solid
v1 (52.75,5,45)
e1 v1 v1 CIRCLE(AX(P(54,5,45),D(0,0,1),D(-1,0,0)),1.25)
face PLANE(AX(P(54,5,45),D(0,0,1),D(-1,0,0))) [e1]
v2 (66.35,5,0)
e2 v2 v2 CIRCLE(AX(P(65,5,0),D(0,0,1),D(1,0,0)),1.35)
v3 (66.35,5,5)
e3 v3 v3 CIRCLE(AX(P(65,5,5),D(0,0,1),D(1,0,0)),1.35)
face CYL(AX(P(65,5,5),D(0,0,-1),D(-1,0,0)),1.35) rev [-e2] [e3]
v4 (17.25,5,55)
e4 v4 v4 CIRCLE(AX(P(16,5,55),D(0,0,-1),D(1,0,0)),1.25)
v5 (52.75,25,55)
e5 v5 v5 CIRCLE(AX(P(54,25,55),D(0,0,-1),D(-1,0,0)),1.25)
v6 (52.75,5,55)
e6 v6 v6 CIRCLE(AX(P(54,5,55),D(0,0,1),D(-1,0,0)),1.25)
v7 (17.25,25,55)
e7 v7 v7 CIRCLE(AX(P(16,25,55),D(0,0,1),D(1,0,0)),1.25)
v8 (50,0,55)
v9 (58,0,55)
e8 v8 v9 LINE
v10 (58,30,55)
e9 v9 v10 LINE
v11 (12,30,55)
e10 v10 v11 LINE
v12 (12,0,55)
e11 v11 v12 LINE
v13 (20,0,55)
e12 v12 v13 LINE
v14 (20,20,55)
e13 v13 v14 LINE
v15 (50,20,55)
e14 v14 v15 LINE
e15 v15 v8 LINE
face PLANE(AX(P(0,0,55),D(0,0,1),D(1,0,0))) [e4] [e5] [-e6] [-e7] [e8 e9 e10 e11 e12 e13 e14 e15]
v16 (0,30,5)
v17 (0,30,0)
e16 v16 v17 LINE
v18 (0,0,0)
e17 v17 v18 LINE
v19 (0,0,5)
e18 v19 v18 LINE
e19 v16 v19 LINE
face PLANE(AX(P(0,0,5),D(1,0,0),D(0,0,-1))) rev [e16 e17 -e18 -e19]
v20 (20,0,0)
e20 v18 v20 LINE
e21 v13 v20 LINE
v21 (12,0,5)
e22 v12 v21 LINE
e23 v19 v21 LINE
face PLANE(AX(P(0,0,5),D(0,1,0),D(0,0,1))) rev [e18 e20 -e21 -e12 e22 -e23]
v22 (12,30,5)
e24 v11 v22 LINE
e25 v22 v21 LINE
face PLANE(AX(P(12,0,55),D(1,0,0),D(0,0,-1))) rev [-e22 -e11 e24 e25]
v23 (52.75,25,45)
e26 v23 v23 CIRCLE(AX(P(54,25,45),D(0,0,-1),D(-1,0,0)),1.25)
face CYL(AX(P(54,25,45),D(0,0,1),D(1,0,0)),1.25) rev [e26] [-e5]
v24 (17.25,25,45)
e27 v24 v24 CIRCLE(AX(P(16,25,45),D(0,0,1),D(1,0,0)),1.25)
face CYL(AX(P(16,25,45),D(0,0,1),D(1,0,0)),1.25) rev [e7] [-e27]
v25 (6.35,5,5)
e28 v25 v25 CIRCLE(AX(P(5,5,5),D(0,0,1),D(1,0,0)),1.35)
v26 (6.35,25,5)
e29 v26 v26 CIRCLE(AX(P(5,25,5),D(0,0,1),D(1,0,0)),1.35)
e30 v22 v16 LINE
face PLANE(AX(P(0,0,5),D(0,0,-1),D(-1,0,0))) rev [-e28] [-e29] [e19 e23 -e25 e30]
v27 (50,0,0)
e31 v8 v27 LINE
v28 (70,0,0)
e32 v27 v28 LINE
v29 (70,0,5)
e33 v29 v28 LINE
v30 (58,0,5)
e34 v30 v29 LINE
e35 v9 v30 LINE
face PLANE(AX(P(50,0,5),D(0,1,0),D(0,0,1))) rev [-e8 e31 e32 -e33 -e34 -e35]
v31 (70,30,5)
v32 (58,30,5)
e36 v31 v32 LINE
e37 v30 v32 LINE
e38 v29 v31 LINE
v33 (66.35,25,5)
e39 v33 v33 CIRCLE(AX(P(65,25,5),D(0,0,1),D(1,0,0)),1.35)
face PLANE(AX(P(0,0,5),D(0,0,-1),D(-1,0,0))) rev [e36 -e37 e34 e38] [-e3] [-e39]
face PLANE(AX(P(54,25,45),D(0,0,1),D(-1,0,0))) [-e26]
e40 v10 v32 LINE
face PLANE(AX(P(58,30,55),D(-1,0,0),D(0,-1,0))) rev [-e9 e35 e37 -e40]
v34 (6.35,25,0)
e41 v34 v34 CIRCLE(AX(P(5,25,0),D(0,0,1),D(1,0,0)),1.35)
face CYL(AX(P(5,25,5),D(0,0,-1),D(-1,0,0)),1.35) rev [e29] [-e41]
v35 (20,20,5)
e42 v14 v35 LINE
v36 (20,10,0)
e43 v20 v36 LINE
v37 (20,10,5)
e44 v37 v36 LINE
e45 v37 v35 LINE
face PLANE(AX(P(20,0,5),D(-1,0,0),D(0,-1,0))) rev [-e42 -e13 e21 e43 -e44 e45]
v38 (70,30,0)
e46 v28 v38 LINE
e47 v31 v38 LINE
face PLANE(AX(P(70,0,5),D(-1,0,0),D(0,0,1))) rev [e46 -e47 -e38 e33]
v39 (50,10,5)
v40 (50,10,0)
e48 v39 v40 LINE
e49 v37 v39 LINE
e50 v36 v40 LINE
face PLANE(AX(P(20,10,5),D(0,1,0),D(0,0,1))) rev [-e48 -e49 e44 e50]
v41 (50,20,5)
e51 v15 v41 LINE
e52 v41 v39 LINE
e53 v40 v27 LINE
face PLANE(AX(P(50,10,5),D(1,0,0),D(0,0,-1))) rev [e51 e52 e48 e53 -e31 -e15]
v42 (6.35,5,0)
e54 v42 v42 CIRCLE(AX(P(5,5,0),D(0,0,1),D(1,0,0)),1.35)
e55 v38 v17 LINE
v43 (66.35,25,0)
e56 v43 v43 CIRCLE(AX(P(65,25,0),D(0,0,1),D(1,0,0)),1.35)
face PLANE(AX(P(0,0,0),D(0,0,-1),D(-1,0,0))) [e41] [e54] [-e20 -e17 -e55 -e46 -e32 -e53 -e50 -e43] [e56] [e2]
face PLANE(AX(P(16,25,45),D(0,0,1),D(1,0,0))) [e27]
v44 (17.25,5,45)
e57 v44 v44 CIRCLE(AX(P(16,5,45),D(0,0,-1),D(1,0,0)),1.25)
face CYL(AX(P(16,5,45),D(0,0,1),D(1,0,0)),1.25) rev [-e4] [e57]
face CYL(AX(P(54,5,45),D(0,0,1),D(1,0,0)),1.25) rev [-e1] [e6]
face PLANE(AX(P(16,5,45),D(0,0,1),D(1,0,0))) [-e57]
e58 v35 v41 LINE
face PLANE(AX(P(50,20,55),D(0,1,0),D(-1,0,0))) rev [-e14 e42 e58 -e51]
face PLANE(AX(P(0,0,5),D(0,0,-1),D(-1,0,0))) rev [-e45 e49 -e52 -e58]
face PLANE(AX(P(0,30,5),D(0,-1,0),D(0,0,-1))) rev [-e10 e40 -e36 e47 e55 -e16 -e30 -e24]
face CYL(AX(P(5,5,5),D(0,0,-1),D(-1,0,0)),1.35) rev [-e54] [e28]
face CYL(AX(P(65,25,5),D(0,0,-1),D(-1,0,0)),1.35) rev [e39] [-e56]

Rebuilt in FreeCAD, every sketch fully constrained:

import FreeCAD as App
import Part
import Sketcher
from FreeCAD import Vector
Q = App.Units.Quantity

doc = App.newDocument("Part")
params = doc.addObject("Spreadsheet::Sheet", "Params")
for row, (alias, value) in enumerate([
    ("sketch1_diameter", "2.7 mm"),
    ("sketch1_width", "30 mm"),
    ("sketch1_width2", "20 mm"),
    ("sketch1_height", "10 mm"),
    ("pad1_length", "5 mm"),
    ("sketch2_width", "30 mm"),
    ("sketch2_width2", "8 mm"),
    ("sketch2_height", "20 mm"),
    ("pad2_length", "50 mm"),
    ("sketch3_diameter", "2.5 mm"),
    ("pocket1_length", "10 mm"),
    ("sketch4_diameter", "2.5 mm"),
    ("pocket2_length", "10 mm"),
], start=1):
    params.set(f"A{row}", alias)
    params.set(f"B{row}", "=" + value)
    params.setAlias(f"B{row}", alias)

body = doc.addObject("PartDesign::Body", "Body")

# Sketch on XY plane
sketch1 = doc.addObject("Sketcher::SketchObject", "Sketch")
body.addObject(sketch1)
sketch1.AttachmentSupport = (doc.XY_Plane, [""])
sketch1.MapMode = "FlatFace"
sketch1.addGeometry(Part.LineSegment(Vector(20, 0, 0), Vector(20, 10, 0)), False)
sketch1.addGeometry(Part.LineSegment(Vector(20, 10, 0), Vector(50, 10, 0)), False)
sketch1.addGeometry(Part.LineSegment(Vector(50, 10, 0), Vector(50, 0, 0)), False)
sketch1.addGeometry(Part.LineSegment(Vector(50, 0, 0), Vector(70, 0, 0)), False)
sketch1.addGeometry(Part.LineSegment(Vector(70, 0, 0), Vector(70, 30, 0)), False)
sketch1.addGeometry(Part.LineSegment(Vector(70, 30, 0), Vector(0, 30, 0)), False)
sketch1.addGeometry(Part.LineSegment(Vector(0, 30, 0), Vector(0, 0, 0)), False)
sketch1.addGeometry(Part.LineSegment(Vector(0, 0, 0), Vector(20, 0, 0)), False)
sketch1.addGeometry(Part.Circle(Vector(5, 5, 0), Vector(0, 0, 1), 1.4), False)
sketch1.addGeometry(Part.Circle(Vector(65, 5, 0), Vector(0, 0, 1), 1.4), False)
sketch1.addGeometry(Part.Circle(Vector(5, 25, 0), Vector(0, 0, 1), 1.4), False)
sketch1.addGeometry(Part.Circle(Vector(65, 25, 0), Vector(0, 0, 1), 1.4), False)
sketch1.addConstraint(Sketcher.Constraint("Coincident", 0, 2, 1, 1))
sketch1.addConstraint(Sketcher.Constraint("Coincident", 1, 2, 2, 1))
sketch1.addConstraint(Sketcher.Constraint("Coincident", 2, 2, 3, 1))
sketch1.addConstraint(Sketcher.Constraint("Coincident", 3, 2, 4, 1))
sketch1.addConstraint(Sketcher.Constraint("Coincident", 4, 2, 5, 1))
sketch1.addConstraint(Sketcher.Constraint("Coincident", 5, 2, 6, 1))
sketch1.addConstraint(Sketcher.Constraint("Coincident", 6, 2, 7, 1))
sketch1.addConstraint(Sketcher.Constraint("Coincident", 7, 2, 0, 1))
sketch1.addConstraint(Sketcher.Constraint("Vertical", 0))
sketch1.addConstraint(Sketcher.Constraint("Horizontal", 1))
sketch1.addConstraint(Sketcher.Constraint("Vertical", 2))
sketch1.addConstraint(Sketcher.Constraint("Horizontal", 3))
sketch1.addConstraint(Sketcher.Constraint("Vertical", 4))
sketch1.addConstraint(Sketcher.Constraint("Horizontal", 5))
sketch1.addConstraint(Sketcher.Constraint("Vertical", 6))
sketch1.addConstraint(Sketcher.Constraint("Horizontal", 7))
sketch1.addConstraint(Sketcher.Constraint("Coincident", 6, 2, -1, 1))
sketch1.addConstraint(Sketcher.Constraint("Equal", 8, 9))
sketch1.addConstraint(Sketcher.Constraint("Equal", 9, 10))
sketch1.addConstraint(Sketcher.Constraint("Equal", 10, 11))
sketch1.addConstraint(Sketcher.Constraint("PointOnObject", 2, 2, -1))
sketch1.addConstraint(Sketcher.Constraint("Horizontal", 8, 3, 9, 3))
sketch1.addConstraint(Sketcher.Constraint("Horizontal", 10, 3, 11, 3))
sketch1.addConstraint(Sketcher.Constraint("Vertical", 8, 3, 10, 3))
sketch1.addConstraint(Sketcher.Constraint("Vertical", 9, 3, 11, 3))
sketch1.addConstraint(Sketcher.Constraint("Equal", 3, 7))
sketch1.addConstraint(Sketcher.Constraint("Equal", 1, 4))
sketch1.addConstraint(Sketcher.Constraint("Diameter", 8, Q("2.7 mm")))
sketch1.addConstraint(Sketcher.Constraint("DistanceX", 1, 1, 1, 2, Q("30 mm")))
sketch1.addConstraint(Sketcher.Constraint("DistanceX", 3, 1, 3, 2, Q("20 mm")))
sketch1.addConstraint(Sketcher.Constraint("DistanceY", 0, 1, 0, 2, Q("10 mm")))
sketch1.addConstraint(Sketcher.Constraint("DistanceX", -1, 1, 8, 3, Q("5 mm")))
sketch1.addConstraint(Sketcher.Constraint("DistanceY", -1, 1, 8, 3, Q("5 mm")))
sketch1.addConstraint(Sketcher.Constraint("DistanceX", -1, 1, 9, 3, Q("65 mm")))
sketch1.addConstraint(Sketcher.Constraint("DistanceY", -1, 1, 10, 3, Q("25 mm")))
sketch1.setExpression("Constraints[27]", "Params.sketch1_diameter")
sketch1.setExpression("Constraints[28]", "Params.sketch1_width")
sketch1.setExpression("Constraints[29]", "Params.sketch1_width2")
sketch1.setExpression("Constraints[30]", "Params.sketch1_height")
pad1 = doc.addObject("PartDesign::Pad", "Pad")
body.addObject(pad1)
pad1.Profile = sketch1
pad1.setExpression("Length", "Params.pad1_length")

# Sketch on XY plane
sketch2 = doc.addObject("Sketcher::SketchObject", "Sketch001")
body.addObject(sketch2)
sketch2.AttachmentSupport = (doc.XY_Plane, [""])
sketch2.MapMode = "FlatFace"
sketch2.AttachmentOffset = App.Placement(Vector(0, 0, 5), App.Rotation())
sketch2.addGeometry(Part.LineSegment(Vector(20, 0, 0), Vector(20, 20, 0)), False)
sketch2.addGeometry(Part.LineSegment(Vector(20, 20, 0), Vector(50, 20, 0)), False)
sketch2.addGeometry(Part.LineSegment(Vector(50, 20, 0), Vector(50, 0, 0)), False)
sketch2.addGeometry(Part.LineSegment(Vector(50, 0, 0), Vector(58, 0, 0)), False)
sketch2.addGeometry(Part.LineSegment(Vector(58, 0, 0), Vector(58, 30, 0)), False)
sketch2.addGeometry(Part.LineSegment(Vector(58, 30, 0), Vector(12, 30, 0)), False)
sketch2.addGeometry(Part.LineSegment(Vector(12, 30, 0), Vector(12, 0, 0)), False)
sketch2.addGeometry(Part.LineSegment(Vector(12, 0, 0), Vector(20, 0, 0)), False)
sketch2.addConstraint(Sketcher.Constraint("Coincident", 0, 2, 1, 1))
sketch2.addConstraint(Sketcher.Constraint("Coincident", 1, 2, 2, 1))
sketch2.addConstraint(Sketcher.Constraint("Coincident", 2, 2, 3, 1))
sketch2.addConstraint(Sketcher.Constraint("Coincident", 3, 2, 4, 1))
sketch2.addConstraint(Sketcher.Constraint("Coincident", 4, 2, 5, 1))
sketch2.addConstraint(Sketcher.Constraint("Coincident", 5, 2, 6, 1))
sketch2.addConstraint(Sketcher.Constraint("Coincident", 6, 2, 7, 1))
sketch2.addConstraint(Sketcher.Constraint("Coincident", 7, 2, 0, 1))
sketch2.addConstraint(Sketcher.Constraint("Vertical", 0))
sketch2.addConstraint(Sketcher.Constraint("Horizontal", 1))
sketch2.addConstraint(Sketcher.Constraint("Vertical", 2))
sketch2.addConstraint(Sketcher.Constraint("Horizontal", 3))
sketch2.addConstraint(Sketcher.Constraint("Vertical", 4))
sketch2.addConstraint(Sketcher.Constraint("Horizontal", 5))
sketch2.addConstraint(Sketcher.Constraint("Vertical", 6))
sketch2.addConstraint(Sketcher.Constraint("Horizontal", 7))
sketch2.addConstraint(Sketcher.Constraint("PointOnObject", 2, 2, -1))
sketch2.addConstraint(Sketcher.Constraint("PointOnObject", 6, 2, -1))
sketch2.addConstraint(Sketcher.Constraint("Equal", 3, 7))
sketch2.addConstraint(Sketcher.Constraint("Equal", 1, 4))
sketch2.addConstraint(Sketcher.Constraint("DistanceX", 1, 1, 1, 2, Q("30 mm")))
sketch2.addConstraint(Sketcher.Constraint("DistanceX", 3, 1, 3, 2, Q("8 mm")))
sketch2.addConstraint(Sketcher.Constraint("DistanceY", 0, 1, 0, 2, Q("20 mm")))
sketch2.addConstraint(Sketcher.Constraint("DistanceX", -1, 1, 0, 2, Q("20 mm")))
sketch2.setExpression("Constraints[20]", "Params.sketch2_width")
sketch2.setExpression("Constraints[21]", "Params.sketch2_width2")
sketch2.setExpression("Constraints[22]", "Params.sketch2_height")
pad2 = doc.addObject("PartDesign::Pad", "Pad001")
body.addObject(pad2)
pad2.Profile = sketch2
pad2.setExpression("Length", "Params.pad2_length")

# Sketch on XY plane
sketch3 = doc.addObject("Sketcher::SketchObject", "Sketch002")
body.addObject(sketch3)
sketch3.AttachmentSupport = (doc.XY_Plane, [""])
sketch3.MapMode = "FlatFace"
sketch3.AttachmentOffset = App.Placement(Vector(0, 0, 55), App.Rotation())
sketch3.addGeometry(Part.Circle(Vector(16, 25, 0), Vector(0, 0, 1), 1.2), False)
sketch3.addConstraint(Sketcher.Constraint("Diameter", 0, Q("2.5 mm")))
sketch3.addConstraint(Sketcher.Constraint("DistanceX", -1, 1, 0, 3, Q("16 mm")))
sketch3.addConstraint(Sketcher.Constraint("DistanceY", -1, 1, 0, 3, Q("25 mm")))
sketch3.setExpression("Constraints[0]", "Params.sketch3_diameter")
pocket1 = doc.addObject("PartDesign::Pocket", "Pocket")
body.addObject(pocket1)
pocket1.Profile = sketch3
pocket1.setExpression("Length", "Params.pocket1_length")
doc.recompute()

datumplane = doc.addObject("PartDesign::Plane", "DatumPlane")
body.addObject(datumplane)
datumplane.AttachmentSupport = (doc.YZ_Plane, [""])
datumplane.MapMode = "FlatFace"
datumplane.AttachmentOffset = App.Placement(Vector(0, 0, 35), App.Rotation())
mirrored = doc.addObject("PartDesign::Mirrored", "Mirrored")
body.addObject(mirrored)
mirrored.Originals = [pocket1]
mirrored.MirrorPlane = (datumplane, [""])
body.Tip = mirrored
doc.recompute()

datumplane2 = doc.addObject("PartDesign::Plane", "DatumPlane001")
body.addObject(datumplane2)
datumplane2.AttachmentSupport = (doc.XZ_Plane, [""])
datumplane2.MapMode = "FlatFace"
datumplane2.AttachmentOffset = App.Placement(Vector(0, 0, -15), App.Rotation())
mirrored2 = doc.addObject("PartDesign::Mirrored", "Mirrored001")
body.addObject(mirrored2)
mirrored2.Originals = [pocket1]
mirrored2.MirrorPlane = (datumplane2, [""])
body.Tip = mirrored2

# Sketch on XY plane
sketch4 = doc.addObject("Sketcher::SketchObject", "Sketch003")
body.addObject(sketch4)
sketch4.AttachmentSupport = (doc.XY_Plane, [""])
sketch4.MapMode = "FlatFace"
sketch4.AttachmentOffset = App.Placement(Vector(0, 0, 55), App.Rotation())
sketch4.addGeometry(Part.Circle(Vector(54, 5, 0), Vector(0, 0, 1), 1.2), False)
sketch4.addConstraint(Sketcher.Constraint("Diameter", 0, Q("2.5 mm")))
sketch4.addConstraint(Sketcher.Constraint("DistanceX", -1, 1, 0, 3, Q("54 mm")))
sketch4.addConstraint(Sketcher.Constraint("DistanceY", -1, 1, 0, 3, Q("5 mm")))
sketch4.setExpression("Constraints[0]", "Params.sketch4_diameter")
pocket2 = doc.addObject("PartDesign::Pocket", "Pocket001")
body.addObject(pocket2)
pocket2.Profile = sketch4
pocket2.setExpression("Length", "Params.pocket2_length")

doc.recompute()
